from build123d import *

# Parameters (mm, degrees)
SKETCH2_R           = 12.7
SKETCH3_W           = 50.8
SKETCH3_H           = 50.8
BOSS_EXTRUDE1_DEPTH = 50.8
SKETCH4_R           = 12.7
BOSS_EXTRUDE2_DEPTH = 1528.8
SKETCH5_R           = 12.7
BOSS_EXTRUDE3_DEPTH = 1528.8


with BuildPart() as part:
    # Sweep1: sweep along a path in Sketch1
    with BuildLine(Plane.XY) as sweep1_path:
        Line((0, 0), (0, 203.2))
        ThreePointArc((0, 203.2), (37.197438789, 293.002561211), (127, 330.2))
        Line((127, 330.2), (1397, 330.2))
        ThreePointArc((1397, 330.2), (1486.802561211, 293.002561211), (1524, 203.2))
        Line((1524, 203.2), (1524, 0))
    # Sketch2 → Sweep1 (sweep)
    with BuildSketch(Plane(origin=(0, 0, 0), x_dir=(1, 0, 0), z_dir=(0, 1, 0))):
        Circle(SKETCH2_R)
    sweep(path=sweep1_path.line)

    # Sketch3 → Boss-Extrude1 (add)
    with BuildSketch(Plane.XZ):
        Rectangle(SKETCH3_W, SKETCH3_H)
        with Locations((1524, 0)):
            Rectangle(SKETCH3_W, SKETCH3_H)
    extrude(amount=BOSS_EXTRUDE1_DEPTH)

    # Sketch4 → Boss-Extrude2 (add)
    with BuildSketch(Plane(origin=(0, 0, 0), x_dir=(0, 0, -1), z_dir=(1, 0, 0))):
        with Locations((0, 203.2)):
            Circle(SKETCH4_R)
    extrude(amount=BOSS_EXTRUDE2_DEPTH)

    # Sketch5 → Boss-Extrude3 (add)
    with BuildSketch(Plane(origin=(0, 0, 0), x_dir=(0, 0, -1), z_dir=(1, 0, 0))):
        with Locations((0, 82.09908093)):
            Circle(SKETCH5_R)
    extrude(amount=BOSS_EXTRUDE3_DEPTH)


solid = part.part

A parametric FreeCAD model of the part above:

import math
import FreeCAD as App
import Part
import Sketcher
Q = App.Units.Quantity

doc = App.newDocument("Part")
params = doc.addObject("Spreadsheet::Sheet", "Params")
for row, (alias, value) in enumerate([
    ("sketch1_diameter", "1 in"),
    ("sketch2_radius", "5 in"),
    ("sketch2_width", "50 in"),
    ("sketch2_height", "8 in"),
    ("sketch3_width", "2 in"),
    ("pad1_length", "2 in"),
    ("sketch4_diameter", "1 in"),
    ("pad2_length", "1528.8 mm"),
    ("sketch5_diameter", "1 in"),
    ("pad3_length", "1528.8 mm"),
], start=1):
    params.set(f"A{row}", alias)
    params.set(f"B{row}", "=" + value)
    params.setAlias(f"B{row}", alias)

body = doc.addObject("PartDesign::Body", "Body")

# Sketch on XZ plane
sketch1 = doc.addObject("Sketcher::SketchObject", "Sketch")
body.addObject(sketch1)
sketch1.AttachmentSupport = (doc.XZ_Plane, [""])
sketch1.MapMode = "FlatFace"
sketch1.addGeometry(Part.Circle(App.Vector(0, 0, 0), App.Vector(0, 0, 1), 12.7), False)
sketch1.addConstraint(Sketcher.Constraint("Coincident", 0, 3, -1, 1))
sketch1.addConstraint(Sketcher.Constraint("Diameter", 0, Q("1 in")))
sketch1.setExpression("Constraints[1]", "Params.sketch1_diameter")

# Sketch on XY plane
sketch2 = doc.addObject("Sketcher::SketchObject", "Sketch001")
body.addObject(sketch2)
sketch2.AttachmentSupport = (doc.XY_Plane, [""])
sketch2.MapMode = "FlatFace"
sketch2.addGeometry(Part.LineSegment(App.Vector(0, 0, 0), App.Vector(0, 203.2, 0)), False)
sketch2.addGeometry(Part.ArcOfCircle(Part.Circle(App.Vector(127, 203.2, 0), App.Vector(0, 0, 1), 127), math.radians(90), math.radians(180)), False)
sketch2.addGeometry(Part.LineSegment(App.Vector(127, 330.2, 0), App.Vector(1397, 330.2, 0)), False)
sketch2.addGeometry(Part.ArcOfCircle(Part.Circle(App.Vector(1397, 203.2, 0), App.Vector(0, 0, 1), 127), math.radians(0), math.radians(90)), False)
sketch2.addGeometry(Part.LineSegment(App.Vector(1524, 203.2, 0), App.Vector(1524, 0, 0)), False)
sketch2.addConstraint(Sketcher.Constraint("Tangent", 0, 2, 1, 2))
sketch2.addConstraint(Sketcher.Constraint("Tangent", 1, 1, 2, 1))
sketch2.addConstraint(Sketcher.Constraint("Tangent", 2, 2, 3, 2))
sketch2.addConstraint(Sketcher.Constraint("Tangent", 3, 1, 4, 1))
sketch2.addConstraint(Sketcher.Constraint("Vertical", 0))
sketch2.addConstraint(Sketcher.Constraint("Horizontal", 2))
sketch2.addConstraint(Sketcher.Constraint("Vertical", 4))
sketch2.addConstraint(Sketcher.Constraint("Coincident", 0, 1, -1, 1))
sketch2.addConstraint(Sketcher.Constraint("Equal", 1, 3))
sketch2.addConstraint(Sketcher.Constraint("PointOnObject", 4, 2, -1))
sketch2.addConstraint(Sketcher.Constraint("Radius", 1, Q("5 in")))
sketch2.addConstraint(Sketcher.Constraint("DistanceX", 2, 1, 2, 2, Q("50 in")))
sketch2.addConstraint(Sketcher.Constraint("DistanceY", 0, 1, 0, 2, Q("8 in")))
sketch2.setExpression("Constraints[10]", "Params.sketch2_radius")
sketch2.setExpression("Constraints[11]", "Params.sketch2_width")
sketch2.setExpression("Constraints[12]", "Params.sketch2_height")
doc.recompute()

additivepipe = doc.addObject("PartDesign::AdditivePipe", "AdditivePipe")
body.addObject(additivepipe)
additivepipe.Profile = sketch1
additivepipe.Spine = (sketch2, ["Edge1", "Edge2", "Edge3", "Edge4", "Edge5"])

# Sketch on XZ plane
sketch3 = doc.addObject("Sketcher::SketchObject", "Sketch002")
body.addObject(sketch3)
sketch3.AttachmentSupport = (doc.XZ_Plane, [""])
sketch3.MapMode = "FlatFace"
sketch3.addGeometry(Part.LineSegment(App.Vector(-25.4, 25.4, 0), App.Vector(-25.4, -25.4, 0)), False)
sketch3.addGeometry(Part.LineSegment(App.Vector(-25.4, -25.4, 0), App.Vector(25.4, -25.4, 0)), False)
sketch3.addGeometry(Part.LineSegment(App.Vector(25.4, -25.4, 0), App.Vector(25.4, 25.4, 0)), False)
sketch3.addGeometry(Part.LineSegment(App.Vector(25.4, 25.4, 0), App.Vector(-25.4, 25.4, 0)), False)
sketch3.addGeometry(Part.LineSegment(App.Vector(1498.6, 25.4, 0), App.Vector(1498.6, -25.4, 0)), False)
sketch3.addGeometry(Part.LineSegment(App.Vector(1498.6, -25.4, 0), App.Vector(1549.4, -25.4, 0)), False)
sketch3.addGeometry(Part.LineSegment(App.Vector(1549.4, -25.4, 0), App.Vector(1549.4, 25.4, 0)), False)
sketch3.addGeometry(Part.LineSegment(App.Vector(1549.4, 25.4, 0), App.Vector(1498.6, 25.4, 0)), False)
sketch3.addConstraint(Sketcher.Constraint("Coincident", 0, 2, 1, 1))
sketch3.addConstraint(Sketcher.Constraint("Coincident", 1, 2, 2, 1))
sketch3.addConstraint(Sketcher.Constraint("Coincident", 2, 2, 3, 1))
sketch3.addConstraint(Sketcher.Constraint("Coincident", 3, 2, 0, 1))
sketch3.addConstraint(Sketcher.Constraint("Coincident", 4, 2, 5, 1))
sketch3.addConstraint(Sketcher.Constraint("Coincident", 5, 2, 6, 1))
sketch3.addConstraint(Sketcher.Constraint("Coincident", 6, 2, 7, 1))
sketch3.addConstraint(Sketcher.Constraint("Coincident", 7, 2, 4, 1))
sketch3.addConstraint(Sketcher.Constraint("Vertical", 0))
sketch3.addConstraint(Sketcher.Constraint("Horizontal", 1))
sketch3.addConstraint(Sketcher.Constraint("Vertical", 2))
sketch3.addConstraint(Sketcher.Constraint("Horizontal", 3))
sketch3.addConstraint(Sketcher.Constraint("Vertical", 4))
sketch3.addConstraint(Sketcher.Constraint("Horizontal", 5))
sketch3.addConstraint(Sketcher.Constraint("Vertical", 6))
sketch3.addConstraint(Sketcher.Constraint("Horizontal", 7))
sketch3.addConstraint(Sketcher.Constraint("Symmetric", 0, 2, 2, 2, -1, 1))
sketch3.addConstraint(Sketcher.Constraint("Horizontal", 1, 2, 4, 2))
sketch3.addConstraint(Sketcher.Constraint("Horizontal", 3, 2, 6, 2))
sketch3.addConstraint(Sketcher.Constraint("Equal", 3, 5))
sketch3.addConstraint(Sketcher.Constraint("Equal", 7, 0))
sketch3.addConstraint(Sketcher.Constraint("DistanceX", 1, 1, 1, 2, Q("2 in")))
sketch3.addConstraint(Sketcher.Constraint("DistanceX", -1, 1, 4, 2, Q("59 in")))
sketch3.setExpression("Constraints[21]", "Params.sketch3_width")
pad1 = doc.addObject("PartDesign::Pad", "Pad")
body.addObject(pad1)
pad1.Profile = sketch3
pad1.setExpression("Length", "Params.pad1_length")

# Sketch on YZ plane
sketch4 = doc.addObject("Sketcher::SketchObject", "Sketch003")
body.addObject(sketch4)
sketch4.AttachmentSupport = (doc.YZ_Plane, [""])
sketch4.MapMode = "FlatFace"
sketch4.addGeometry(Part.Circle(App.Vector(203.2, 0, 0), App.Vector(0, 0, 1), 12.7), False)
sketch4.addConstraint(Sketcher.Constraint("PointOnObject", 0, 3, -1))
sketch4.addConstraint(Sketcher.Constraint("Diameter", 0, Q("1 in")))
sketch4.addConstraint(Sketcher.Constraint("DistanceX", -1, 1, 0, 3, Q("8 in")))
sketch4.setExpression("Constraints[1]", "Params.sketch4_diameter")
pad2 = doc.addObject("PartDesign::Pad", "Pad001")
body.addObject(pad2)
pad2.Profile = sketch4
pad2.setExpression("Length", "Params.pad2_length")

# Sketch on YZ plane
sketch5 = doc.addObject("Sketcher::SketchObject", "Sketch004")
body.addObject(sketch5)
sketch5.AttachmentSupport = (doc.YZ_Plane, [""])
sketch5.MapMode = "FlatFace"
sketch5.addGeometry(Part.Circle(App.Vector(82.099081, 0, 0), App.Vector(0, 0, 1), 12.7), False)
sketch5.addConstraint(Sketcher.Constraint("PointOnObject", 0, 3, -1))
sketch5.addConstraint(Sketcher.Constraint("Diameter", 0, Q("1 in")))
sketch5.addConstraint(Sketcher.Constraint("DistanceX", -1, 1, 0, 3, 82.099081))
sketch5.setExpression("Constraints[1]", "Params.sketch5_diameter")
pad3 = doc.addObject("PartDesign::Pad", "Pad002")
body.addObject(pad3)
pad3.Profile = sketch5
pad3.setExpression("Length", "Params.pad3_length")

doc.recompute()
